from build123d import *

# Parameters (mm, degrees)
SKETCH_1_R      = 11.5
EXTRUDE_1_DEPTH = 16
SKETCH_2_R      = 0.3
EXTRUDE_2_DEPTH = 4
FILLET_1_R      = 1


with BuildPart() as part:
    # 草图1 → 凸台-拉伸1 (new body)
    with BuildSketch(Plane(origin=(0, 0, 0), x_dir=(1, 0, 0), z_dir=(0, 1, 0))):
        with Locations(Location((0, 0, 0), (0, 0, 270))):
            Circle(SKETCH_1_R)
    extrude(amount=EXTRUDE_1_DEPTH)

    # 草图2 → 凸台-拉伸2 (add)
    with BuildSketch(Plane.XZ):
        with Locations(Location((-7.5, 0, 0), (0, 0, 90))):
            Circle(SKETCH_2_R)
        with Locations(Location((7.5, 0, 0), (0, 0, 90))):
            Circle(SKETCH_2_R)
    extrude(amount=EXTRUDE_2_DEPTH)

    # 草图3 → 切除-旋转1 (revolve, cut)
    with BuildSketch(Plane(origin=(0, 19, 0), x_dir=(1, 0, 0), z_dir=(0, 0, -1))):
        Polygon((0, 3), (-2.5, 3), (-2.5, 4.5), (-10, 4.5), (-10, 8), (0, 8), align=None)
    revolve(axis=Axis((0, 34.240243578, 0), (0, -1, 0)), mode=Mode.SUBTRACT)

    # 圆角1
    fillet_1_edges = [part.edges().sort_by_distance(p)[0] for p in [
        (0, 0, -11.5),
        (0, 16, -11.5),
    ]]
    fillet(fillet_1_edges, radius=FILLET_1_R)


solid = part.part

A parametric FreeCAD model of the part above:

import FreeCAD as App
import Part
import Sketcher

V = App.Vector


def edges_at(feature, points):
    """Names of the edges that pass closest to the given points."""
    edges = feature.Shape.Edges
    near = lambda p: min(range(len(edges)), key=lambda i: edges[i].distToShape(Part.Vertex(*p))[0])
    return sorted({f"Edge{near(p) + 1}" for p in points})

doc = App.newDocument("Part")
params = doc.addObject("Spreadsheet::Sheet", "Params")
for row, (alias, value) in enumerate([
    ("sketch1_diameter", "23 mm"),
    ("pad1_length", "16 mm"),
    ("sketch2_diameter", "0.6 mm"),
    ("pad2_length", "4 mm"),
    ("sketch3_width", "10 mm"),
    ("sketch3_height", "5 mm"),
    ("sketch3_width2", "2.5 mm"),
    ("sketch3_height2", "3.5 mm"),
    ("groove_angle", "360 deg"),
    ("fillet_radius", "1 mm"),
], start=1):
    params.set(f"A{row}", alias)
    params.set(f"B{row}", "=" + value)
    params.setAlias(f"B{row}", alias)

body = doc.addObject("PartDesign::Body", "Body")

# Sketch on XZ plane
sketch1 = body.newObject("Sketcher::SketchObject", "Sketch")
sketch1.AttachmentSupport = (doc.getObject("XZ_Plane"), [""])
sketch1.MapMode = "FlatFace"
sketch1.addGeometry(Part.Circle(V(0, 0, 0), V(0, 0, 1), 11.5), False)
sketch1.addConstraint([
    Sketcher.Constraint("Coincident", 0, 3, -1, 1),
    Sketcher.Constraint("Diameter", 0, 23.0),
])
sketch1.setExpression("Constraints[1]", "Params.sketch1_diameter")
pad1 = body.newObject("PartDesign::Pad", "Pad")
pad1.Profile = sketch1
pad1.setExpression("Length", "Params.pad1_length")
pad1.Reversed = True

# Sketch on XZ plane
sketch2 = body.newObject("Sketcher::SketchObject", "Sketch001")
sketch2.AttachmentSupport = (doc.getObject("XZ_Plane"), [""])
sketch2.MapMode = "FlatFace"
sketch2.addGeometry([
    Part.Circle(V(-7.5, 0, 0), V(0, 0, 1), 0.3),
    Part.Circle(V(7.5, 0, 0), V(0, 0, 1), 0.3),
], False)
sketch2.addConstraint([
    Sketcher.Constraint("Equal", 0, 1),
    Sketcher.Constraint("Symmetric", 0, 3, 1, 3, -1, 1),
    Sketcher.Constraint("PointOnObject", 0, 3, -1),
    Sketcher.Constraint("Diameter", 0, 0.6),
    Sketcher.Constraint("DistanceX", 0, 3, 1, 3, 15.0),
])
sketch2.setExpression("Constraints[3]", "Params.sketch2_diameter")
pad2 = body.newObject("PartDesign::Pad", "Pad001")
pad2.Profile = sketch2
pad2.setExpression("Length", "Params.pad2_length")

# Sketch on XY plane
sketch3 = body.newObject("Sketcher::SketchObject", "Sketch002")
sketch3.AttachmentSupport = (doc.getObject("XY_Plane"), [""])
sketch3.MapMode = "FlatFace"
sketch3.addGeometry([
    Part.LineSegment(V(-2.5, 16, 0), V(0, 16, 0)),  # 0
    Part.LineSegment(V(0, 16, 0), V(0, 11, 0)),  # 1
    Part.LineSegment(V(0, 11, 0), V(-10, 11, 0)),  # 2
    Part.LineSegment(V(-10, 11, 0), V(-10, 14.5, 0)),  # 3
    Part.LineSegment(V(-10, 14.5, 0), V(-2.5, 14.5, 0)),  # 4
    Part.LineSegment(V(-2.5, 14.5, 0), V(-2.5, 16, 0)),  # 5
], False)
sketch3.addConstraint([
    Sketcher.Constraint("Coincident", 0, 2, 1, 1),
    Sketcher.Constraint("Coincident", 1, 2, 2, 1),
    Sketcher.Constraint("Coincident", 2, 2, 3, 1),
    Sketcher.Constraint("Coincident", 3, 2, 4, 1),
    Sketcher.Constraint("Coincident", 4, 2, 5, 1),
    Sketcher.Constraint("Coincident", 5, 2, 0, 1),
    Sketcher.Constraint("Horizontal", 0),
    Sketcher.Constraint("Vertical", 1),
    Sketcher.Constraint("Horizontal", 2),
    Sketcher.Constraint("Vertical", 3),
    Sketcher.Constraint("Horizontal", 4),
    Sketcher.Constraint("Vertical", 5),
    Sketcher.Constraint("PointOnObject", 0, 2, -2),
    Sketcher.Constraint("DistanceX", 2, 2, 2, 1, 10.0),
    Sketcher.Constraint("DistanceY", 1, 2, 1, 1, 5.0),
    Sketcher.Constraint("DistanceX", 0, 1, 0, 2, 2.5),
    Sketcher.Constraint("DistanceY", 3, 1, 3, 2, 3.5),
    Sketcher.Constraint("DistanceY", -1, 1, 0, 2, 16.0),
])
sketch3.setExpression("Constraints[13]", "Params.sketch3_width")
sketch3.setExpression("Constraints[14]", "Params.sketch3_height")
sketch3.setExpression("Constraints[15]", "Params.sketch3_width2")
sketch3.setExpression("Constraints[16]", "Params.sketch3_height2")
groove = body.newObject("PartDesign::Groove", "Groove")
groove.Profile = sketch3
groove.ReferenceAxis = (sketch3, ["V_Axis"])
groove.setExpression("Angle", "Params.groove_angle")
doc.recompute()

fillet = body.newObject("PartDesign::Fillet", "Fillet")
fillet.Base = (groove, edges_at(groove, [(0, 0, -11.5), (0, 16, -11.5)]))
fillet.setExpression("Radius", "Params.fillet_radius")

doc.recompute()
